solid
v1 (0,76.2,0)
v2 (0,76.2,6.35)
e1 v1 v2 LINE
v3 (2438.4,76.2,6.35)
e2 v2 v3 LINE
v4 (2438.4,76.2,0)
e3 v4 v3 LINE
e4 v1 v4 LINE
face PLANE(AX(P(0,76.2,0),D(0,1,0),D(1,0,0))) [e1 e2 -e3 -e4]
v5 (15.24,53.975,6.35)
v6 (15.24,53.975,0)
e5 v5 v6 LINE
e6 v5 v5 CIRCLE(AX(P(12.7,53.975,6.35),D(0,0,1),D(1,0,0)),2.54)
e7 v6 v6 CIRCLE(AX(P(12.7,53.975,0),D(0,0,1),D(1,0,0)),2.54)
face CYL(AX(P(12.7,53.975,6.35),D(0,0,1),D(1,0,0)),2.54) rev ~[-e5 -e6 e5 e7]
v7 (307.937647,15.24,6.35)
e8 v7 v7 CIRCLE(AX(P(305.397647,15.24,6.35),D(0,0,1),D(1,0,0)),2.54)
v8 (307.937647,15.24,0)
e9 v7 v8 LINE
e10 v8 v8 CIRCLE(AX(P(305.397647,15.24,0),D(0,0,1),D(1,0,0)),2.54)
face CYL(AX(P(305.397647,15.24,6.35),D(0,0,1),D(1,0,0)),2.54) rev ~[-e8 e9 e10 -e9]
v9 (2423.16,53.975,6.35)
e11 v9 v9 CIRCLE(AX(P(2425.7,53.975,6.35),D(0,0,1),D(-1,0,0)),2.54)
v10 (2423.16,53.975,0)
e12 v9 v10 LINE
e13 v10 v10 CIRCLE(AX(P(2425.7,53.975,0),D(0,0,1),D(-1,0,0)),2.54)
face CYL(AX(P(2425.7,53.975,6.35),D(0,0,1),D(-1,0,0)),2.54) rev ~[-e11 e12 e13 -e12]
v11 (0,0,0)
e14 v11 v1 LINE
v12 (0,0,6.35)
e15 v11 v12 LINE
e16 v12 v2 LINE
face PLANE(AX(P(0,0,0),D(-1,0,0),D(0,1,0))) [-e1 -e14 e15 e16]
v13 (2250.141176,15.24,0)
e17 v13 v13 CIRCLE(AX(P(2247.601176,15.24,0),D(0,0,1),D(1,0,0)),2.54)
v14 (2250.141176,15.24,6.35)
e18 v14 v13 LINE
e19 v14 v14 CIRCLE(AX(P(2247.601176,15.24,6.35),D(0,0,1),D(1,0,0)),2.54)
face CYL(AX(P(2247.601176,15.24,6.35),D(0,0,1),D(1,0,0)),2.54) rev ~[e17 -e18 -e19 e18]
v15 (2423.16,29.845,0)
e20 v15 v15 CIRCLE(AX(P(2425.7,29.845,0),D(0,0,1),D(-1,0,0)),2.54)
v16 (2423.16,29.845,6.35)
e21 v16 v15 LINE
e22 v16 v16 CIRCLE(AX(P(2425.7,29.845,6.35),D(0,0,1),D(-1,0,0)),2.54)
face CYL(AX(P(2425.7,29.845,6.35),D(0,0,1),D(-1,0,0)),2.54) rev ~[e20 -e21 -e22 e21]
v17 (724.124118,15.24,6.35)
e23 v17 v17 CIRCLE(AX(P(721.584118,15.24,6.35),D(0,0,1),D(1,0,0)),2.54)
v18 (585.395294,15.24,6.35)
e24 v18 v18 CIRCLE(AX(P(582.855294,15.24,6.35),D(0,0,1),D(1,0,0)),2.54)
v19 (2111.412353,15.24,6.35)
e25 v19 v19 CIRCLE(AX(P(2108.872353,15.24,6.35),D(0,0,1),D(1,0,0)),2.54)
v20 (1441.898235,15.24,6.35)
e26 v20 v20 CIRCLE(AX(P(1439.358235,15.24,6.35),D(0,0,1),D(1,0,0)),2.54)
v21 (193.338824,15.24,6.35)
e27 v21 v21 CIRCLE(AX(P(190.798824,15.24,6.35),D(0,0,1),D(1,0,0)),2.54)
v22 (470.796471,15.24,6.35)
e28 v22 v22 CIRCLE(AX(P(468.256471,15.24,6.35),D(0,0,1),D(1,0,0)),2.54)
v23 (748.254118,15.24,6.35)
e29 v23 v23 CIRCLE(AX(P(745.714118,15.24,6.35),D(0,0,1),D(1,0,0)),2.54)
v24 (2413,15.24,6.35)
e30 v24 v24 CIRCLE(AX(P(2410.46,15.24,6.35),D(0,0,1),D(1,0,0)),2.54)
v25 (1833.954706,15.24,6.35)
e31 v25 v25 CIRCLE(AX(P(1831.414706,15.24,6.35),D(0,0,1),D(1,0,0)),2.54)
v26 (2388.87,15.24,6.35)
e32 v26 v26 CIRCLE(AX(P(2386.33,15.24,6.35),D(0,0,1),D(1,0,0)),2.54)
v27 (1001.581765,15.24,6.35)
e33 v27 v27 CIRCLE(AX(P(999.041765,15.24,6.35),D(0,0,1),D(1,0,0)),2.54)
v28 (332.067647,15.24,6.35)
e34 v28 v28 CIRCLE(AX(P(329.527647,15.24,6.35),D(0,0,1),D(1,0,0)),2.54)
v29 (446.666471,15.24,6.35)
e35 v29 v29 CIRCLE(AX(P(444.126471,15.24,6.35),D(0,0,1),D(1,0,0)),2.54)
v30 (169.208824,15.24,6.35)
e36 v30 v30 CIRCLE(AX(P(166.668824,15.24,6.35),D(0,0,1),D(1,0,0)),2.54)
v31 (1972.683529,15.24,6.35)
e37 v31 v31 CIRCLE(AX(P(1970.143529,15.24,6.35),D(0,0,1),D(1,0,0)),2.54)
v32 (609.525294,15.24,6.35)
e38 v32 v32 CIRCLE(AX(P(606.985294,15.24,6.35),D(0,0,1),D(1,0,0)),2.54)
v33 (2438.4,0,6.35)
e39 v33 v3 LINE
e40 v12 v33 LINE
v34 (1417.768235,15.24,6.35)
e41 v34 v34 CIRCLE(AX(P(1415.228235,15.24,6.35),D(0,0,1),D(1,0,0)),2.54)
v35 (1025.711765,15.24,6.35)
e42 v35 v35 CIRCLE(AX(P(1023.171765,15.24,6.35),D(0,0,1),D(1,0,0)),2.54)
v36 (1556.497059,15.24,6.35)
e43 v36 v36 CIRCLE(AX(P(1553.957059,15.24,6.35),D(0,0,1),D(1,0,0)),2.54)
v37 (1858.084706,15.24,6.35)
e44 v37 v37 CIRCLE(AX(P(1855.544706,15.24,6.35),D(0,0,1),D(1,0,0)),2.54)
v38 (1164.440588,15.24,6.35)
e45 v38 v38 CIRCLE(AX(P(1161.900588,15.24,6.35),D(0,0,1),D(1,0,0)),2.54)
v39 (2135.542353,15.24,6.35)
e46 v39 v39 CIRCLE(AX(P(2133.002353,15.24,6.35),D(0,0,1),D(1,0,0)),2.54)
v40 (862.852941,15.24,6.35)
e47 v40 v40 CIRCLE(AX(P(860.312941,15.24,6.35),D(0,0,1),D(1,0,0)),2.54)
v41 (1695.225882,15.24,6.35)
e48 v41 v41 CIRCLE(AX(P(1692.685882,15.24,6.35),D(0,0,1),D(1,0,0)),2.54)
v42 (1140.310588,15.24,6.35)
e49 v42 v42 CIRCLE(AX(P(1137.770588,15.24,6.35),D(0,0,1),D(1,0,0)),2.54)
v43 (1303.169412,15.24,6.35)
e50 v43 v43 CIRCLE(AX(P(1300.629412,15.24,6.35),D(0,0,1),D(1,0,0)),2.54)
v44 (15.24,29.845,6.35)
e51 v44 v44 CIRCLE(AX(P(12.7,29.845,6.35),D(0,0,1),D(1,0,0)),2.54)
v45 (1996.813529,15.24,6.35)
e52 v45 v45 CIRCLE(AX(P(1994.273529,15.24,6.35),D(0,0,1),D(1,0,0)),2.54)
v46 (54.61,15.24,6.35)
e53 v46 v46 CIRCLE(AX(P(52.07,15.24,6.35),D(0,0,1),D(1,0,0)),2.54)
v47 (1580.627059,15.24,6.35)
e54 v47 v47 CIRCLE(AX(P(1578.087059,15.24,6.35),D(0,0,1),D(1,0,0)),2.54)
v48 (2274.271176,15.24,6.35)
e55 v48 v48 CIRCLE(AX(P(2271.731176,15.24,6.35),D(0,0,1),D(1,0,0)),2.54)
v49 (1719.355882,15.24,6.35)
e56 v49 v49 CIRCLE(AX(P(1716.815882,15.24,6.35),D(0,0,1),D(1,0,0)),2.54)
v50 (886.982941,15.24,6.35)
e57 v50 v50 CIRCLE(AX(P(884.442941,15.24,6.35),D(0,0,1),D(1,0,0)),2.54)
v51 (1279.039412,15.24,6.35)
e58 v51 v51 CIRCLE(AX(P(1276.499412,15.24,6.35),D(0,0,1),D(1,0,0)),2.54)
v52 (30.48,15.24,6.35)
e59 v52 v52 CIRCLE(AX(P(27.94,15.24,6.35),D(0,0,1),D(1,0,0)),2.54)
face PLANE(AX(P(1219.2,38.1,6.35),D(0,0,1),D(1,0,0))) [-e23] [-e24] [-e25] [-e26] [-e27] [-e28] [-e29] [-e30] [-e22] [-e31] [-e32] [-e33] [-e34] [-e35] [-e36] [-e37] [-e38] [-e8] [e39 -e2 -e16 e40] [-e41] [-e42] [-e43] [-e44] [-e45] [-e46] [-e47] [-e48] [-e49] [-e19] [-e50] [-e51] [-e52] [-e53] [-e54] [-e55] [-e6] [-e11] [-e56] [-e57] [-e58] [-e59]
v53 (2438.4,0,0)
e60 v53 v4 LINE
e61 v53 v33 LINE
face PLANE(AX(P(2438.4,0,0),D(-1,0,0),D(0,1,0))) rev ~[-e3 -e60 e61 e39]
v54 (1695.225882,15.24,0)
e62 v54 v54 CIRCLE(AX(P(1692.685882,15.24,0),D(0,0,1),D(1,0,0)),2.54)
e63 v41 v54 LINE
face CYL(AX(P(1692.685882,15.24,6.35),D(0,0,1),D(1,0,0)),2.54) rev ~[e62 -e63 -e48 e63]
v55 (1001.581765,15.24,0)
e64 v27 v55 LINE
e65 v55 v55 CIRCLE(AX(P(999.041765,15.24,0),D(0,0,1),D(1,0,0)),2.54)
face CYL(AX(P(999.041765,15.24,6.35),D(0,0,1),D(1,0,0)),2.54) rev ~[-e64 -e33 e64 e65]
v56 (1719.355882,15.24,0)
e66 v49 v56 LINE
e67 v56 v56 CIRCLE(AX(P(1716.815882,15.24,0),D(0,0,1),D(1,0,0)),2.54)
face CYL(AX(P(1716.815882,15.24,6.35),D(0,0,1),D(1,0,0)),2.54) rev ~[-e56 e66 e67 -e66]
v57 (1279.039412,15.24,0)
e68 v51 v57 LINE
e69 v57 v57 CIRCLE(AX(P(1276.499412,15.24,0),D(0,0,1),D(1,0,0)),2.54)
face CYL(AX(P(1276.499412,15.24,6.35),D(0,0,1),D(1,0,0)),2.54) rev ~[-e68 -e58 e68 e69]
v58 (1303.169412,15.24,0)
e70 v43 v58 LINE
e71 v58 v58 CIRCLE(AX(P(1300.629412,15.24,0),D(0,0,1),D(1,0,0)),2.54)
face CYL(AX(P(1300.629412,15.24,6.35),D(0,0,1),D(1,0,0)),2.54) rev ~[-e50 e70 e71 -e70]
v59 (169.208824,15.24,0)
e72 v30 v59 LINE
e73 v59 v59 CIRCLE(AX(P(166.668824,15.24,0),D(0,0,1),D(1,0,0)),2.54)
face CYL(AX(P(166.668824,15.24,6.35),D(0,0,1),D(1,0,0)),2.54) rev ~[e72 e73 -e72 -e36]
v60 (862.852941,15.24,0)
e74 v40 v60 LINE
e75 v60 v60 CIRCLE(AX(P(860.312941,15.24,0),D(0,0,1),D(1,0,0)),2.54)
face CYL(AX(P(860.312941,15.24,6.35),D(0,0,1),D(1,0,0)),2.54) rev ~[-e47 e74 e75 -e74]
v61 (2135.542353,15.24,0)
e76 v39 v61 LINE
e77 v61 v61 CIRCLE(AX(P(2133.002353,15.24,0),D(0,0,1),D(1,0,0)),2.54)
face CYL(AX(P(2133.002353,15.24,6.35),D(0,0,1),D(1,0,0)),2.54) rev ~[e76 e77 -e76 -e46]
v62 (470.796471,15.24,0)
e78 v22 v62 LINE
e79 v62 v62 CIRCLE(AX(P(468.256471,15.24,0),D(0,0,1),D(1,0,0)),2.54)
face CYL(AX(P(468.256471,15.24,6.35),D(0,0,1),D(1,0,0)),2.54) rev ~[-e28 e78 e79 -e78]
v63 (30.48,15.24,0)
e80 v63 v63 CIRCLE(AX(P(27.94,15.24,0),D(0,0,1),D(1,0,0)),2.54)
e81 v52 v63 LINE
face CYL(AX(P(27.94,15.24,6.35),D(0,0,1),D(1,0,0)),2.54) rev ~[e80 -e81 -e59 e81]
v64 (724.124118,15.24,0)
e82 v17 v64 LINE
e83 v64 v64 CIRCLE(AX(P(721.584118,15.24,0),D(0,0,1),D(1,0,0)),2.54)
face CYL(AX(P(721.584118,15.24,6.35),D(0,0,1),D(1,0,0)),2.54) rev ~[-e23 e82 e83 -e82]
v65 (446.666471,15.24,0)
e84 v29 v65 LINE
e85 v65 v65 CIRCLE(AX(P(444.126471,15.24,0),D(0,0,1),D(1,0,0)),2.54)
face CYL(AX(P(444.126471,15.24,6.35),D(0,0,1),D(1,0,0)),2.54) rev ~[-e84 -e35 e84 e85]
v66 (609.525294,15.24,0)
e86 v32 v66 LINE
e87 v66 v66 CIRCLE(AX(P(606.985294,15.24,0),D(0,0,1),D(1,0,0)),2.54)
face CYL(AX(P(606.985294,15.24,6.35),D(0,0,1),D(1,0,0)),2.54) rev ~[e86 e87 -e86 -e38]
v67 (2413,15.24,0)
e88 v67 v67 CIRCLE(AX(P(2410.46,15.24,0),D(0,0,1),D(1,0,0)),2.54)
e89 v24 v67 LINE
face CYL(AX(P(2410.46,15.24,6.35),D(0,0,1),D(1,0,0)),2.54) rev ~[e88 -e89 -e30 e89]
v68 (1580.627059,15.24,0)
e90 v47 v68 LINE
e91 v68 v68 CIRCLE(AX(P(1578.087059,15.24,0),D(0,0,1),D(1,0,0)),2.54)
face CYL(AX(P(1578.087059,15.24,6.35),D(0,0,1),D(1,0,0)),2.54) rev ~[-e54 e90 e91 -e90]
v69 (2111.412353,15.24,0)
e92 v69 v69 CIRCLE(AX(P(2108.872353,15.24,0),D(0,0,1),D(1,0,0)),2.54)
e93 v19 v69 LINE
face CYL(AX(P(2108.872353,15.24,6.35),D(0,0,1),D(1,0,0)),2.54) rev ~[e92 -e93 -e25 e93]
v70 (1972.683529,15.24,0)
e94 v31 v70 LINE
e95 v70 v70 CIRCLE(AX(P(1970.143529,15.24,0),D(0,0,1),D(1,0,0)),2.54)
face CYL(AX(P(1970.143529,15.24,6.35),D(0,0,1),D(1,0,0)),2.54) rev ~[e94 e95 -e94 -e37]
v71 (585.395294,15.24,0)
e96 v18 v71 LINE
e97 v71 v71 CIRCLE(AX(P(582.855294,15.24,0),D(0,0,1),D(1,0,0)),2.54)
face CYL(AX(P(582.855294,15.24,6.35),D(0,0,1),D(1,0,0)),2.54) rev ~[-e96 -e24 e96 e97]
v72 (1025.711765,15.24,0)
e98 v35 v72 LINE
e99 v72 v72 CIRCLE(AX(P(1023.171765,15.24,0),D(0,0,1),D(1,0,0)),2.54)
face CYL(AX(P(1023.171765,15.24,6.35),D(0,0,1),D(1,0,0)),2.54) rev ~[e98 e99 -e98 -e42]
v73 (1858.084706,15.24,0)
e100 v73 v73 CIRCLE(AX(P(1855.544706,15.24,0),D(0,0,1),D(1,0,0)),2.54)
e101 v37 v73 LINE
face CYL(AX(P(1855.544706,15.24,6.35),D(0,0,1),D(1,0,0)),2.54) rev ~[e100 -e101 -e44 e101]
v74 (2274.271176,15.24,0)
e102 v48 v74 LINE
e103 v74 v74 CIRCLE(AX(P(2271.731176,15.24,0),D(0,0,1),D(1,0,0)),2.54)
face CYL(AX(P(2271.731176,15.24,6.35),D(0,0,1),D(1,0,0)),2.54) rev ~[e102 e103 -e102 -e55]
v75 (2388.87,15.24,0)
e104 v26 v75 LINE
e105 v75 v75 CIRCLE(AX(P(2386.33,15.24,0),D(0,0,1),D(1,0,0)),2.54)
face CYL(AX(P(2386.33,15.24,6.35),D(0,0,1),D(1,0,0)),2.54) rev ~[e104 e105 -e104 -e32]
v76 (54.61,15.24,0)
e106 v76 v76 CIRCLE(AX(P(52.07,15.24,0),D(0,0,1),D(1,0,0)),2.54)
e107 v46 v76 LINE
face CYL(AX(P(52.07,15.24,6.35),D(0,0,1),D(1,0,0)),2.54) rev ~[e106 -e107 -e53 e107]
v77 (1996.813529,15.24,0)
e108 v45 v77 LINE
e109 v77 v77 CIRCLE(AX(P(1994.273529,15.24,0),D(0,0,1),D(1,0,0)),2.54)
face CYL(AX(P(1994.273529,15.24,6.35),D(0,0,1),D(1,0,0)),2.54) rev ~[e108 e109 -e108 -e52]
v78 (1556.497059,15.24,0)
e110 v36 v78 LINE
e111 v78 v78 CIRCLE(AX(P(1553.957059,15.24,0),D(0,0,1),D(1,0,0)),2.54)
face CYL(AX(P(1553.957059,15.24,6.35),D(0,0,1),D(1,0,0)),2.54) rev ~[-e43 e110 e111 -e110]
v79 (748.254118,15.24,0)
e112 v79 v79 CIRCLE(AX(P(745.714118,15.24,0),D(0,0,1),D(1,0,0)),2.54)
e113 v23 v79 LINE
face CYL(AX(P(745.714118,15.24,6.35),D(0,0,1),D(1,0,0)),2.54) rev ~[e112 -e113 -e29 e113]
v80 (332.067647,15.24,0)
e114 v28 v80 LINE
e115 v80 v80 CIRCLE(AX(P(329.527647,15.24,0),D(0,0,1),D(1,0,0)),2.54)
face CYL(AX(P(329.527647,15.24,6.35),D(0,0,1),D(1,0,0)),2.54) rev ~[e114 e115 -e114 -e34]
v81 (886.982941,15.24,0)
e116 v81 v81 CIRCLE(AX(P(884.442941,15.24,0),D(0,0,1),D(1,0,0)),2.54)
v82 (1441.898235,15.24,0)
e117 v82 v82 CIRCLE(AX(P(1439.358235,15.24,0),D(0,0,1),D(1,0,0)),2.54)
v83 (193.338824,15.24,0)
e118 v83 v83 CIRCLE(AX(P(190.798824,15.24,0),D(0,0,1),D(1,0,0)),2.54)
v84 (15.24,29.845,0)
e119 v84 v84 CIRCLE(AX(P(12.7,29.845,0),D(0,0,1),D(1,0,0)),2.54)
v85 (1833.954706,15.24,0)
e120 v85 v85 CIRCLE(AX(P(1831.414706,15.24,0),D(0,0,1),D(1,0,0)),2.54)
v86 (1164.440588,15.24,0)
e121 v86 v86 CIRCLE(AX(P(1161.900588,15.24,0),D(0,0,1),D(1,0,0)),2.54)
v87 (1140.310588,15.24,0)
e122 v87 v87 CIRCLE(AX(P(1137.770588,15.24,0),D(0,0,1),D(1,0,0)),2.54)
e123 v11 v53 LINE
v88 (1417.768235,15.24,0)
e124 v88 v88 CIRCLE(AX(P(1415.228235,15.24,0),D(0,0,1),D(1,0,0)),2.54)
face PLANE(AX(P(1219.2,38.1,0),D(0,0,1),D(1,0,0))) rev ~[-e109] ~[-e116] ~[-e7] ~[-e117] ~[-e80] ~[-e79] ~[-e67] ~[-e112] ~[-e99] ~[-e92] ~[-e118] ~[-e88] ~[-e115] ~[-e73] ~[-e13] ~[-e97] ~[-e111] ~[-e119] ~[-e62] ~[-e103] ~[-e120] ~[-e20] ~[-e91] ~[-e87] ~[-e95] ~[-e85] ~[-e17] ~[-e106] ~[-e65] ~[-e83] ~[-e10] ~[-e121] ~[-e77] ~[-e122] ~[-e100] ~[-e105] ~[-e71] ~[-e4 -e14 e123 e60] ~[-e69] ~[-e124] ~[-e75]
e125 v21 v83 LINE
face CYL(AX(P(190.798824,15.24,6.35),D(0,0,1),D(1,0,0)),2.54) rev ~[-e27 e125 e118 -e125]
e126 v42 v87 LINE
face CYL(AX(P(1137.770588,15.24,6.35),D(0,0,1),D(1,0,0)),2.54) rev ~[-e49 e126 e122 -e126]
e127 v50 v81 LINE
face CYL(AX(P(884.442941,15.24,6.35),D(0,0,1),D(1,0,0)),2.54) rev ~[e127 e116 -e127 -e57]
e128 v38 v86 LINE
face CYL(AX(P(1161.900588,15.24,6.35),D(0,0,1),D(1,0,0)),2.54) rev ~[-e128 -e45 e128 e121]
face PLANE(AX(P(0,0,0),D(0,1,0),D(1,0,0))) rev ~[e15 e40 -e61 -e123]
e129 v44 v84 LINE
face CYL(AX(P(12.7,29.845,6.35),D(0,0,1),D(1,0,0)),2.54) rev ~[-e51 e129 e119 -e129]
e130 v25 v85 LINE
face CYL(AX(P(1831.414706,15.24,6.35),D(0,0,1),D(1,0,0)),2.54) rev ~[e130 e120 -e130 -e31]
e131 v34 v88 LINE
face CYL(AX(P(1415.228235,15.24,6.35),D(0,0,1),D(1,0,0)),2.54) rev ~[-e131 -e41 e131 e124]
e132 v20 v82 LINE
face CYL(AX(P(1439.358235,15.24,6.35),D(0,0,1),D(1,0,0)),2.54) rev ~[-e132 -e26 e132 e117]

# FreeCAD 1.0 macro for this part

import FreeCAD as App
import Part
import Sketcher

V = App.Vector
Q = App.Units.Quantity

doc = App.newDocument("Part")
body = doc.addObject("PartDesign::Body", "Body")

# Sketch on XY plane
sketch1 = doc.addObject("Sketcher::SketchObject", "Sketch")
body.addObject(sketch1)
sketch1.AttachmentSupport = (doc.XY_Plane, [""])
sketch1.MapMode = "FlatFace"
sketch1.addGeometry([
    Part.LineSegment(V(0, 76, 0), V(0, 0, 0)),
    Part.LineSegment(V(0, 0, 0), V(2438, 0, 0)),
    Part.LineSegment(V(2438, 0, 0), V(2438, 76, 0)),
    Part.LineSegment(V(2438, 76, 0), V(0, 76, 0)),
], False)
sketch1.addConstraint([
    Sketcher.Constraint("Coincident", 0, 2, 1, 1),
    Sketcher.Constraint("Coincident", 1, 2, 2, 1),
    Sketcher.Constraint("Coincident", 2, 2, 3, 1),
    Sketcher.Constraint("Coincident", 3, 2, 0, 1),
    Sketcher.Constraint("Vertical", 0),
    Sketcher.Constraint("Horizontal", 1),
    Sketcher.Constraint("Vertical", 2),
    Sketcher.Constraint("Horizontal", 3),
    Sketcher.Constraint("Coincident", 0, 2, -1, 1),
    Sketcher.Constraint("DistanceX", 1, 1, 1, 2, Q("96 in")),
    Sketcher.Constraint("DistanceY", 0, 2, 0, 1, Q("3 in")),
])
pad1 = doc.addObject("PartDesign::Pad", "Pad")
body.addObject(pad1)
pad1.Profile = sketch1
pad1.Length = Q("0.25 in")

# Sketch on XY plane
sketch2 = doc.addObject("Sketcher::SketchObject", "Sketch001")
body.addObject(sketch2)
sketch2.AttachmentSupport = (doc.XY_Plane, [""])
sketch2.MapMode = "FlatFace"
sketch2.AttachmentOffset = App.Placement(V(0, 0, 0.25 * 25.4), App.Rotation())
sketch2.addGeometry([
    Part.Circle(V(27.9, 15.2, 0), V(0, 0, 1), 2.5),
    Part.Circle(V(52.1, 15.2, 0), V(0, 0, 1), 2.5),
], False)
sketch2.addConstraint([
    Sketcher.Constraint("Equal", 0, 1),
    Sketcher.Constraint("Horizontal", 0, 3, 1, 3),
    Sketcher.Constraint("Diameter", 0, Q("0.2 in")),
    Sketcher.Constraint("DistanceX", -1, 1, 0, 3, Q("1.1 in")),
    Sketcher.Constraint("DistanceY", -1, 1, 0, 3, Q("0.6 in")),
    Sketcher.Constraint("DistanceX", -1, 1, 1, 3, Q("2.05 in")),
])
pocket1 = doc.addObject("PartDesign::Pocket", "Pocket")
body.addObject(pocket1)
pocket1.Profile = sketch2
pocket1.Length = Q("0.25 in")

# Sketch on XY plane
sketch3 = doc.addObject("Sketcher::SketchObject", "Sketch002")
body.addObject(sketch3)
sketch3.AttachmentSupport = (doc.XY_Plane, [""])
sketch3.MapMode = "FlatFace"
sketch3.AttachmentOffset = App.Placement(V(0, 0, 0.25 * 25.4), App.Rotation())
sketch3.addGeometry([
    Part.Circle(V(12.7, 29.8, 0), V(0, 0, 1), 2.5),
    Part.Circle(V(12.7, 54, 0), V(0, 0, 1), 2.5),
    Part.Circle(V(2425.7, 29.8, 0), V(0, 0, 1), 2.5),
    Part.Circle(V(2425.7, 54, 0), V(0, 0, 1), 2.5),
], False)
sketch3.addConstraint([
    Sketcher.Constraint("Equal", 0, 1),
    Sketcher.Constraint("Equal", 1, 2),
    Sketcher.Constraint("Equal", 2, 3),
    Sketcher.Constraint("Horizontal", 0, 3, 2, 3),
    Sketcher.Constraint("Horizontal", 1, 3, 3, 3),
    Sketcher.Constraint("Vertical", 0, 3, 1, 3),
    Sketcher.Constraint("Vertical", 2, 3, 3, 3),
    Sketcher.Constraint("Diameter", 0, Q("0.2 in")),
    Sketcher.Constraint("DistanceX", 0, 3, 2, 3, Q("95 in")),
    Sketcher.Constraint("DistanceX", -1, 1, 0, 3, Q("0.5 in")),
    Sketcher.Constraint("DistanceY", 0, 3, 1, 3, Q("0.95 in")),
    Sketcher.Constraint("DistanceY", -1, 1, 0, 3, Q("1.175 in")),
])
pocket2 = doc.addObject("PartDesign::Pocket", "Pocket001")
body.addObject(pocket2)
pocket2.Profile = sketch3
pocket2.Length = Q("0.25 in")
doc.recompute()

linearpattern = doc.addObject("PartDesign::LinearPattern", "LinearPattern")
body.addObject(linearpattern)
linearpattern.Originals = [pocket1]
linearpattern.Direction = (doc.X_Axis, [""])
linearpattern.Mode = "offset"
linearpattern.Offset = 138.728824
linearpattern.Occurrences = 18
body.Tip = linearpattern

doc.recompute()
